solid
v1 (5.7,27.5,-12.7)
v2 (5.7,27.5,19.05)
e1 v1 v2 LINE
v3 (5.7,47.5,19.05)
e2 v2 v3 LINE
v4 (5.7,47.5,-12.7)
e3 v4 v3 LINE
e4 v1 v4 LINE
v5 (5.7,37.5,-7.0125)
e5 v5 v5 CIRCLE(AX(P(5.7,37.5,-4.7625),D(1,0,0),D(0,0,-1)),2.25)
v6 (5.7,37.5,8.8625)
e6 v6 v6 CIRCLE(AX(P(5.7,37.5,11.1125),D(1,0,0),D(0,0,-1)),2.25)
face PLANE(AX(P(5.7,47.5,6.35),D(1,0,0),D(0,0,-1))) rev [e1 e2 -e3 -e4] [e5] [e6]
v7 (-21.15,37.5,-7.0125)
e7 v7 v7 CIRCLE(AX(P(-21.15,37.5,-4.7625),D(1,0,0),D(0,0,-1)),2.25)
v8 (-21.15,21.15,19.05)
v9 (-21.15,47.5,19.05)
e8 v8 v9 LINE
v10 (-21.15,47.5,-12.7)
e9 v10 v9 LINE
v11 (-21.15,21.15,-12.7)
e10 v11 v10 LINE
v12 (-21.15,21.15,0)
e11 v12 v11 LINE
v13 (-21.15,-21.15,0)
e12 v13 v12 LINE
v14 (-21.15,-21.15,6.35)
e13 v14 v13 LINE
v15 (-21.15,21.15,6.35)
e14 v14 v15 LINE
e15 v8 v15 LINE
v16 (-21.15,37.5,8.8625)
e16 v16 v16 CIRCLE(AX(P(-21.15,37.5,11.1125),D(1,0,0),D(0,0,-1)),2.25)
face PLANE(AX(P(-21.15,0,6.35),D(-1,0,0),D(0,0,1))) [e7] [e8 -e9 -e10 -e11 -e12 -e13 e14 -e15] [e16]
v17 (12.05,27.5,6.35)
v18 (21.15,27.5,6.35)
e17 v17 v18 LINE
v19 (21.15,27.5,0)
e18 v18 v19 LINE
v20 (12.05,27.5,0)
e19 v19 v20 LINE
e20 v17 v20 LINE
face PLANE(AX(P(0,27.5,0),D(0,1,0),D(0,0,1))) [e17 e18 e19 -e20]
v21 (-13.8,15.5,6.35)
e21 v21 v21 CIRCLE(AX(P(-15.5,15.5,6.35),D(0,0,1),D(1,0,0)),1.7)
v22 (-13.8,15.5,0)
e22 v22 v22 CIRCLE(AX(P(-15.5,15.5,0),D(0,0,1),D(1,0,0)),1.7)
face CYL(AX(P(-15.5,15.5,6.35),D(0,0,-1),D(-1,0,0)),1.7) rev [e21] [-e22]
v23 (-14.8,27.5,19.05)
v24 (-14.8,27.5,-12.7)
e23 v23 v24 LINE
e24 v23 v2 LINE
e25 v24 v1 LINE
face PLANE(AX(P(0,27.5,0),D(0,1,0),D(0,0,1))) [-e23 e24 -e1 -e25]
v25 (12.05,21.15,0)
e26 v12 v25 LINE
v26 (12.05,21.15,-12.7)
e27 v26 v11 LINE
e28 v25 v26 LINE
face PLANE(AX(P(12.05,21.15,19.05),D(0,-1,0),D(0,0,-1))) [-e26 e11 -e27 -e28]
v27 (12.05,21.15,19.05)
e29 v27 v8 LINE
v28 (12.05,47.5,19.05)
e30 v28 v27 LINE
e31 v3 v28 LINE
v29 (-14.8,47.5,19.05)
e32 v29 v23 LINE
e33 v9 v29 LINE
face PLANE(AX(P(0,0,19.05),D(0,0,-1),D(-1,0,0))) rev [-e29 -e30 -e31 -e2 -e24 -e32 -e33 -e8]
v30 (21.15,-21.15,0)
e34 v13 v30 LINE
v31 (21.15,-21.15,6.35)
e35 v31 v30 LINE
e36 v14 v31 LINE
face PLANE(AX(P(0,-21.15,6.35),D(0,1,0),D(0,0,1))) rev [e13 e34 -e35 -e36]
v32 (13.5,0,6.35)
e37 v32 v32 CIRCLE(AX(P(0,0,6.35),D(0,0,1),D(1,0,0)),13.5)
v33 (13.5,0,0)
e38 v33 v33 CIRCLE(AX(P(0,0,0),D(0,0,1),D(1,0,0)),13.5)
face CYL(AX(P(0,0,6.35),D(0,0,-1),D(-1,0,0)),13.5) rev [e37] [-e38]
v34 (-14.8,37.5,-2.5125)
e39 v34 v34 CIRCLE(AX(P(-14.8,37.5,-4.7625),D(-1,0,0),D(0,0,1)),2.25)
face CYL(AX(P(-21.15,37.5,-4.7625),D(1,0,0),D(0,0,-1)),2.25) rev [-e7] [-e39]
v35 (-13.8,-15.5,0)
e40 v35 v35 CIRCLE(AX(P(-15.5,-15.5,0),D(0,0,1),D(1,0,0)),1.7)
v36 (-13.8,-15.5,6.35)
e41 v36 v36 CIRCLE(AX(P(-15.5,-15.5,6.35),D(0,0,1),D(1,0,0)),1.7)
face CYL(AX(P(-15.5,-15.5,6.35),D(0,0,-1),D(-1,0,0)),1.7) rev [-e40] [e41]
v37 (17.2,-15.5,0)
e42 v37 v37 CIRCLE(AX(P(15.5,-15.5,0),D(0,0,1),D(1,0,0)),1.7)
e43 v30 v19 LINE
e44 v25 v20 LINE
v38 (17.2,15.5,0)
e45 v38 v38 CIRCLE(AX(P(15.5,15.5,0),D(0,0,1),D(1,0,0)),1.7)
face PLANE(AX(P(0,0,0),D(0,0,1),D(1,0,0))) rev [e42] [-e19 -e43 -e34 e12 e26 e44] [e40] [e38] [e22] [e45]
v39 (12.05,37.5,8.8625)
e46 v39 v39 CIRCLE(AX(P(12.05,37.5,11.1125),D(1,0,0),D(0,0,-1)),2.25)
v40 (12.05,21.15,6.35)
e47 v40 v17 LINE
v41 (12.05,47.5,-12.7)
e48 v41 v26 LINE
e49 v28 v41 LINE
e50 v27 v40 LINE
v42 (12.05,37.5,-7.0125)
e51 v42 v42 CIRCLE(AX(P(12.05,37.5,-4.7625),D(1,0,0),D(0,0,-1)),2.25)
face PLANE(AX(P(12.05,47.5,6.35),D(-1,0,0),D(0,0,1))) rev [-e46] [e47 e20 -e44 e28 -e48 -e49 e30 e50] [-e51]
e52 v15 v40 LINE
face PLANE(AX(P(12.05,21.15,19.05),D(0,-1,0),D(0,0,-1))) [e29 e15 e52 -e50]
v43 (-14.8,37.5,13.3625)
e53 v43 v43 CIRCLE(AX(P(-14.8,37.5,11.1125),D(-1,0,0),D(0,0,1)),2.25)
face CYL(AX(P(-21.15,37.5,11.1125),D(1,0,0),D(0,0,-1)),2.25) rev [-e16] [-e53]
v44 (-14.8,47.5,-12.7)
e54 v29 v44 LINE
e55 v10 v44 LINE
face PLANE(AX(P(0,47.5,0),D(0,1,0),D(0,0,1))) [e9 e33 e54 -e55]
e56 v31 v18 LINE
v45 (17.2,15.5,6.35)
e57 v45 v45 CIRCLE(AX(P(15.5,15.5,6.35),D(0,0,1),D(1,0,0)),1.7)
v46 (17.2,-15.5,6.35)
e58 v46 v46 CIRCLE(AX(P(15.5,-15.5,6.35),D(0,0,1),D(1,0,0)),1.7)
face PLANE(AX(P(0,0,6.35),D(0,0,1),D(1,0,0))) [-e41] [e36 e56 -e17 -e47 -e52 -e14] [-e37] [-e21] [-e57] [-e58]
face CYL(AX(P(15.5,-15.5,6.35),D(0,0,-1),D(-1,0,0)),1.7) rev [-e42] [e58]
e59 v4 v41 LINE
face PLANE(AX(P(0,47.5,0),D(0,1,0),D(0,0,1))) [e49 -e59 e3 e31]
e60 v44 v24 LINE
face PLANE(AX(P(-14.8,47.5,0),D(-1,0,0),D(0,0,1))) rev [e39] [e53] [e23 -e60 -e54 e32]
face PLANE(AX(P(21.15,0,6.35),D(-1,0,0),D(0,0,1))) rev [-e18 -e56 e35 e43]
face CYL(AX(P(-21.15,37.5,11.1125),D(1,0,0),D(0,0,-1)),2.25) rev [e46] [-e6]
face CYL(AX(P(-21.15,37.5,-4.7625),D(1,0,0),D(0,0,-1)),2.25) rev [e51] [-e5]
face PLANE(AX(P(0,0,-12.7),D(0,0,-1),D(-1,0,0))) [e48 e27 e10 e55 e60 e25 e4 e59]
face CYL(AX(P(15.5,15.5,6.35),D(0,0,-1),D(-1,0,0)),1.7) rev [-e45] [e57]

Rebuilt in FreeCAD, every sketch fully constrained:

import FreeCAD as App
import Part
import Sketcher
from FreeCAD import Vector


def add_polygon(sketch, points):
    """Adds a closed chain of lines whose ends are joined by coincident constraints."""
    first, n = sketch.GeometryCount, len(points)
    for a, b in zip(points, points[1:] + points[:1]):
        sketch.addGeometry(Part.LineSegment(App.Vector(*a, 0), App.Vector(*b, 0)), False)
    for i in range(n):
        sketch.addConstraint(Sketcher.Constraint("Coincident", first + i, 2, first + (i + 1) % n, 1))

doc = App.newDocument("Part")
body = doc.addObject("PartDesign::Body", "Body")

sketch1 = doc.addObject("Sketcher::SketchObject", "Sketch")
body.addObject(sketch1)
sketch1.AttachmentSupport = (doc.XY_Plane, [""])
sketch1.MapMode = "FlatFace"
add_polygon(sketch1, [(-21.15, 21.15), (-21.15, -21.15), (21.15, -21.15), (21.15, 21.15)])
sketch1.addGeometry(Part.Circle(Vector(-15.5, -15.5, 0), Vector(0, 0, 1), 1.7), False)
sketch1.addGeometry(Part.Circle(Vector(15.5, -15.5, 0), Vector(0, 0, 1), 1.7), False)
sketch1.addGeometry(Part.Circle(Vector(-15.5, 15.5, 0), Vector(0, 0, 1), 1.7), False)
sketch1.addGeometry(Part.Circle(Vector(0, 0, 0), Vector(0, 0, 1), 13.5), False)
sketch1.addGeometry(Part.Circle(Vector(15.5, 15.5, 0), Vector(0, 0, 1), 1.7), False)
sketch1.addConstraint([
    Sketcher.Constraint("Vertical", 0),
    Sketcher.Constraint("Horizontal", 1),
    Sketcher.Constraint("Vertical", 2),
    Sketcher.Constraint("Horizontal", 3),
    Sketcher.Constraint("Coincident", 7, 3, -1, 1),
    Sketcher.Constraint("Equal", 4, 5),
    Sketcher.Constraint("Equal", 5, 6),
    Sketcher.Constraint("Equal", 6, 8),
    Sketcher.Constraint("Symmetric", 5, 3, 6, 3, -1, 1),
    Sketcher.Constraint("Symmetric", 4, 3, 8, 3, -1, 1),
    Sketcher.Constraint("Symmetric", 0, 2, 2, 2, -1, 1),
    Sketcher.Constraint("Symmetric", 4, 3, 5, 3, -2),
    Sketcher.Constraint("Equal", 3, 0),
    Sketcher.Constraint("Diameter", 7, 27.0),
    Sketcher.Constraint("Diameter", 4, 3.4),
    Sketcher.Constraint("DistanceX", 1, 1, 1, 2, 42.3),
    Sketcher.Constraint("DistanceX", 4, 3, 5, 3, 31.0),
    Sketcher.Constraint("DistanceY", 4, 3, 6, 3, 31.0),
])
pad1 = doc.addObject("PartDesign::Pad", "Pad")
body.addObject(pad1)
pad1.Profile = sketch1
pad1.Length = 6.35

sketch2 = doc.addObject("Sketcher::SketchObject", "Sketch001")
body.addObject(sketch2)
sketch2.AttachmentSupport = (doc.XZ_Plane, [""])
sketch2.MapMode = "FlatFace"
sketch2.AttachmentOffset = App.Placement(Vector(0, 0, -21.15), App.Rotation())
add_polygon(sketch2, [(-21.15, 0), (-21.15, 6.35), (21.15, 6.35), (21.15, 0)])
sketch2.addConstraint([
    Sketcher.Constraint("Vertical", 0),
    Sketcher.Constraint("Horizontal", 1),
    Sketcher.Constraint("Vertical", 2),
    Sketcher.Constraint("Horizontal", 3),
    Sketcher.Constraint("Symmetric", 2, 2, 3, 2, -1, 1),
    Sketcher.Constraint("DistanceX", 1, 1, 1, 2, 42.3),
    Sketcher.Constraint("DistanceY", 0, 1, 0, 2, 6.35),
])
pad2 = doc.addObject("PartDesign::Pad", "Pad001")
body.addObject(pad2)
pad2.Profile = sketch2
pad2.Length = 6.35
pad2.Reversed = True

sketch3 = doc.addObject("Sketcher::SketchObject", "Sketch002")
body.addObject(sketch3)
sketch3.AttachmentSupport = (doc.XZ_Plane, [""])
sketch3.MapMode = "FlatFace"
sketch3.AttachmentOffset = App.Placement(Vector(0, 0, -27.5), App.Rotation())
add_polygon(sketch3, [(-21.15, 0), (-21.15, 6.35), (-14.8, 6.35), (-14.8, 0)])
add_polygon(sketch3, [(5.7, 0), (5.7, 6.35), (12.05, 6.35), (12.05, 0)])
sketch3.addConstraint([
    Sketcher.Constraint("Vertical", 0),
    Sketcher.Constraint("Horizontal", 1),
    Sketcher.Constraint("Vertical", 2),
    Sketcher.Constraint("Horizontal", 3),
    Sketcher.Constraint("Vertical", 4),
    Sketcher.Constraint("Horizontal", 5),
    Sketcher.Constraint("Vertical", 6),
    Sketcher.Constraint("Horizontal", 7),
    Sketcher.Constraint("PointOnObject", 2, 2, -1),
    Sketcher.Constraint("PointOnObject", 6, 2, -1),
    Sketcher.Constraint("Horizontal", 1, 2, 4, 2),
    Sketcher.Constraint("Equal", 3, 5),
    Sketcher.Constraint("Equal", 7, 0),
    Sketcher.Constraint("DistanceX", 1, 1, 1, 2, 6.35),
    Sketcher.Constraint("DistanceX", 1, 2, -1, 1, 14.8),
    Sketcher.Constraint("DistanceX", -1, 1, 4, 2, 5.7),
])
pad3 = doc.addObject("PartDesign::Pad", "Pad002")
body.addObject(pad3)
pad3.Profile = sketch3
pad3.Length = 20
pad3.Reversed = True

sketch4 = doc.addObject("Sketcher::SketchObject", "Sketch003")
body.addObject(sketch4)
sketch4.AttachmentSupport = (doc.XY_Plane, [""])
sketch4.MapMode = "FlatFace"
add_polygon(sketch4, [(12.05, 47.5), (12.05, 21.15), (-21.15, 21.15), (-21.15, 47.5), (-14.8, 47.5), (-14.8, 27.5), (5.7, 27.5), (5.7, 47.5)])
sketch4.addConstraint([
    Sketcher.Constraint("Vertical", 0),
    Sketcher.Constraint("Horizontal", 1),
    Sketcher.Constraint("Vertical", 2),
    Sketcher.Constraint("Horizontal", 3),
    Sketcher.Constraint("Vertical", 4),
    Sketcher.Constraint("Horizontal", 5),
    Sketcher.Constraint("Vertical", 6),
    Sketcher.Constraint("Horizontal", 7),
    Sketcher.Constraint("Horizontal", 3, 2, 6, 2),
    Sketcher.Constraint("Equal", 3, 7),
    Sketcher.Constraint("DistanceY", 4, 2, 4, 1, 20.0),
    Sketcher.Constraint("DistanceX", 1, 2, 1, 1, 33.2),
    Sketcher.Constraint("DistanceX", 5, 1, 5, 2, 20.5),
    Sketcher.Constraint("DistanceY", 0, 2, 0, 1, 26.35),
    Sketcher.Constraint("DistanceY", -1, 1, 2, 2, 47.5),
    Sketcher.Constraint("DistanceX", 3, 2, -1, 1, 14.8),
])
pad4 = doc.addObject("PartDesign::Pad", "Pad003")
body.addObject(pad4)
pad4.Profile = sketch4
pad4.Type = "TwoLengths"
pad4.Length = 12.7
pad4.Length2 = 19.05
pad4.Reversed = True

sketch5 = doc.addObject("Sketcher::SketchObject", "Sketch004")
body.addObject(sketch5)
sketch5.AttachmentSupport = (doc.YZ_Plane, [""])
sketch5.MapMode = "FlatFace"
sketch5.AttachmentOffset = App.Placement(Vector(0, 0, 12.05), App.Rotation())
sketch5.addGeometry([
    Part.Circle(Vector(37.5, -4.7625, 0), Vector(0, 0, 1), 2.25),
    Part.Circle(Vector(37.5, 11.1125, 0), Vector(0, 0, 1), 2.25),
], False)
sketch5.addConstraint([
    Sketcher.Constraint("Equal", 0, 1),
    Sketcher.Constraint("Vertical", 0, 3, 1, 3),
    Sketcher.Constraint("Diameter", 0, 4.5),
    Sketcher.Constraint("DistanceX", -1, 1, 0, 3, 37.5),
    Sketcher.Constraint("DistanceY", 0, 3, 1, 3, 15.875),
    Sketcher.Constraint("DistanceY", 0, 3, -1, 1, 4.7625),
])
pocket1 = doc.addObject("PartDesign::Pocket", "Pocket")
body.addObject(pocket1)
pocket1.Profile = sketch5
pocket1.Type = "ThroughAll"

doc.recompute()
